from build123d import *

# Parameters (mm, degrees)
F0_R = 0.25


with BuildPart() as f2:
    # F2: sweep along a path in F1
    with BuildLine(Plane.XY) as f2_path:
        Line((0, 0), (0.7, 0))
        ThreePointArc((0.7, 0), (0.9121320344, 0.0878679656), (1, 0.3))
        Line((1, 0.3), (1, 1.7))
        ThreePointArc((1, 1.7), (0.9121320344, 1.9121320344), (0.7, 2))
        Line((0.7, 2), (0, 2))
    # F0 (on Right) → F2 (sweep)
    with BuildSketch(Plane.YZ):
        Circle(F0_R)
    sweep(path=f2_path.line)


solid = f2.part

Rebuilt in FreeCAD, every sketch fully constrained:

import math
import FreeCAD as App
import Part
import Sketcher

V = App.Vector

doc = App.newDocument("Part")
params = doc.addObject("Spreadsheet::Sheet", "Params")
for row, (alias, value) in enumerate([
    ("sketch1_diameter", "0.5 mm"),
    ("sketch2_radius", "0.3 mm"),
    ("sketch2_width", "0.7 mm"),
    ("sketch2_height", "1.4 mm"),
], start=1):
    params.set(f"A{row}", alias)
    params.set(f"B{row}", "=" + value)
    params.setAlias(f"B{row}", alias)

body = doc.addObject("PartDesign::Body", "Body")

# Sketch on YZ plane
sketch1 = body.newObject("Sketcher::SketchObject", "Sketch")
sketch1.AttachmentSupport = (doc.getObject("YZ_Plane"), [""])
sketch1.MapMode = "FlatFace"
sketch1.addGeometry(Part.Circle(V(0, 0, 0), V(0, 0, 1), 0.25), False)
sketch1.addConstraint(Sketcher.Constraint("Coincident", 0, 3, -1, 1))
sketch1.addConstraint(Sketcher.Constraint("Diameter", 0, 0.5))
sketch1.setExpression("Constraints[1]", "Params.sketch1_diameter")

# Sketch on XY plane
sketch2 = body.newObject("Sketcher::SketchObject", "Sketch001")
sketch2.AttachmentSupport = (doc.getObject("XY_Plane"), [""])
sketch2.MapMode = "FlatFace"
sketch2.addGeometry(Part.LineSegment(V(0, 0, 0), V(0.7, 0, 0)), False)
sketch2.addGeometry(Part.ArcOfCircle(Part.Circle(V(0.7, 0.3, 0), V(0, 0, 1), 0.3), math.radians(-90), math.radians(0)), False)
sketch2.addGeometry(Part.LineSegment(V(1, 0.3, 0), V(1, 1.7, 0)), False)
sketch2.addGeometry(Part.ArcOfCircle(Part.Circle(V(0.7, 1.7, 0), V(0, 0, 1), 0.3), math.radians(0), math.radians(90)), False)
sketch2.addGeometry(Part.LineSegment(V(0.7, 2, 0), V(0, 2, 0)), False)
sketch2.addConstraint(Sketcher.Constraint("Tangent", 0, 2, 1, 1))
sketch2.addConstraint(Sketcher.Constraint("Tangent", 1, 2, 2, 1))
sketch2.addConstraint(Sketcher.Constraint("Tangent", 2, 2, 3, 1))
sketch2.addConstraint(Sketcher.Constraint("Tangent", 3, 2, 4, 1))
sketch2.addConstraint(Sketcher.Constraint("Horizontal", 0))
sketch2.addConstraint(Sketcher.Constraint("Vertical", 2))
sketch2.addConstraint(Sketcher.Constraint("Horizontal", 4))
sketch2.addConstraint(Sketcher.Constraint("Coincident", 0, 1, -1, 1))
sketch2.addConstraint(Sketcher.Constraint("Equal", 1, 3))
sketch2.addConstraint(Sketcher.Constraint("PointOnObject", 4, 2, -2))
sketch2.addConstraint(Sketcher.Constraint("Radius", 1, 0.3))
sketch2.addConstraint(Sketcher.Constraint("DistanceX", 0, 1, 0, 2, 0.7))
sketch2.addConstraint(Sketcher.Constraint("DistanceY", 2, 1, 2, 2, 1.4))
sketch2.setExpression("Constraints[10]", "Params.sketch2_radius")
sketch2.setExpression("Constraints[11]", "Params.sketch2_width")
sketch2.setExpression("Constraints[12]", "Params.sketch2_height")
doc.recompute()

additivepipe = body.newObject("PartDesign::AdditivePipe", "AdditivePipe")
additivepipe.Profile = sketch1
additivepipe.Spine = (sketch2, ["Edge1", "Edge2", "Edge3", "Edge4", "Edge5"])

doc.recompute()
